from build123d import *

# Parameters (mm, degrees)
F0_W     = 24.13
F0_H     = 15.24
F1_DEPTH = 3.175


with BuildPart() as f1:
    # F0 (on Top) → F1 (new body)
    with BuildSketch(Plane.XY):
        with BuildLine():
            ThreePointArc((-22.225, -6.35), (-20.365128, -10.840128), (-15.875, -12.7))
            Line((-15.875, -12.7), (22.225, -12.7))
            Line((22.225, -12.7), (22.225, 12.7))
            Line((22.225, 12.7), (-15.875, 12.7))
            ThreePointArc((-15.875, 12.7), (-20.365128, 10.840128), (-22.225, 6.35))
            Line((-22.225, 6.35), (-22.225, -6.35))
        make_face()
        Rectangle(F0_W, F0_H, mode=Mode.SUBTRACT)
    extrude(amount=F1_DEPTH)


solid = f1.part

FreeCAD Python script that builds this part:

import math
import FreeCAD as App
import Part
import Sketcher

V = App.Vector
Q = App.Units.Quantity

doc = App.newDocument("Part")
body = doc.addObject("PartDesign::Body", "Body")

sketch1 = body.newObject("Sketcher::SketchObject", "Sketch")
sketch1.AttachmentSupport = (doc.getObject("XY_Plane"), [""])
sketch1.MapMode = "FlatFace"
sketch1.addGeometry(Part.ArcOfCircle(Part.Circle(V(-16, -6, 0), V(0, 0, 1), 6), math.radians(-180), math.radians(-90)), False)
sketch1.addGeometry(Part.LineSegment(V(-16, -13, 0), V(22, -13, 0)), False)
sketch1.addGeometry(Part.LineSegment(V(22, -13, 0), V(22, 13, 0)), False)
sketch1.addGeometry(Part.LineSegment(V(22, 13, 0), V(-16, 13, 0)), False)
sketch1.addGeometry(Part.ArcOfCircle(Part.Circle(V(-16, 6, 0), V(0, 0, 1), 6), math.radians(90), math.radians(180)), False)
sketch1.addGeometry(Part.LineSegment(V(-22, 6, 0), V(-22, -6, 0)), False)
sketch1.addGeometry(Part.LineSegment(V(12, -8, 0), V(-12, -8, 0)), False)
sketch1.addGeometry(Part.LineSegment(V(-12, -8, 0), V(-12, 8, 0)), False)
sketch1.addGeometry(Part.LineSegment(V(-12, 8, 0), V(12, 8, 0)), False)
sketch1.addGeometry(Part.LineSegment(V(12, 8, 0), V(12, -8, 0)), False)
sketch1.addConstraint(Sketcher.Constraint("Tangent", 0, 2, 1, 1))
sketch1.addConstraint(Sketcher.Constraint("Coincident", 1, 2, 2, 1))
sketch1.addConstraint(Sketcher.Constraint("Coincident", 2, 2, 3, 1))
sketch1.addConstraint(Sketcher.Constraint("Tangent", 3, 2, 4, 1))
sketch1.addConstraint(Sketcher.Constraint("Tangent", 4, 2, 5, 1))
sketch1.addConstraint(Sketcher.Constraint("Tangent", 5, 2, 0, 1))
sketch1.addConstraint(Sketcher.Constraint("Coincident", 6, 2, 7, 1))
sketch1.addConstraint(Sketcher.Constraint("Coincident", 7, 2, 8, 1))
sketch1.addConstraint(Sketcher.Constraint("Coincident", 8, 2, 9, 1))
sketch1.addConstraint(Sketcher.Constraint("Coincident", 9, 2, 6, 1))
sketch1.addConstraint(Sketcher.Constraint("Horizontal", 1))
sketch1.addConstraint(Sketcher.Constraint("Vertical", 2))
sketch1.addConstraint(Sketcher.Constraint("Horizontal", 3))
sketch1.addConstraint(Sketcher.Constraint("Vertical", 5))
sketch1.addConstraint(Sketcher.Constraint("Horizontal", 6))
sketch1.addConstraint(Sketcher.Constraint("Vertical", 7))
sketch1.addConstraint(Sketcher.Constraint("Horizontal", 8))
sketch1.addConstraint(Sketcher.Constraint("Vertical", 9))
sketch1.addConstraint(Sketcher.Constraint("Equal", 0, 4))
sketch1.addConstraint(Sketcher.Constraint("Symmetric", 6, 2, 8, 2, -1, 1))
sketch1.addConstraint(Sketcher.Constraint("DistanceY", 2, 1, 2, 2, Q("1 in")))
sketch1.addConstraint(Sketcher.Constraint("Radius", 0, Q("0.25 in")))
sketch1.addConstraint(Sketcher.Constraint("DistanceX", 1, 1, 1, 2, Q("1.5 in")))
sketch1.addConstraint(Sketcher.Constraint("DistanceY", 7, 1, 7, 2, Q("0.6 in")))
sketch1.addConstraint(Sketcher.Constraint("DistanceX", 6, 2, 6, 1, Q("0.95 in")))
sketch1.addConstraint(Sketcher.Constraint("DistanceY", 0, 2, -1, 1, Q("0.5 in")))
sketch1.addConstraint(Sketcher.Constraint("DistanceX", 5, 2, 6, 2, Q("0.4 in")))
pad1 = body.newObject("PartDesign::Pad", "Pad")
pad1.Profile = sketch1
pad1.Length = Q("0.125 in")

doc.recompute()
